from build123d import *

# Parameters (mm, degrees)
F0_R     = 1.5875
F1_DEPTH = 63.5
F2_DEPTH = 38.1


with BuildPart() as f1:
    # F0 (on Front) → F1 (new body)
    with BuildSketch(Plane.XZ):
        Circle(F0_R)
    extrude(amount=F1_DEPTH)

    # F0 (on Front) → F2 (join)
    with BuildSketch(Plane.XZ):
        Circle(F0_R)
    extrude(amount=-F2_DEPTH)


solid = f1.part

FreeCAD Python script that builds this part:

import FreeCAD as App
import Part
import Sketcher
from FreeCAD import Vector
Q = App.Units.Quantity

doc = App.newDocument("Part")
body = doc.addObject("PartDesign::Body", "Body")

# Sketch on XZ plane
sketch1 = doc.addObject("Sketcher::SketchObject", "Sketch")
body.addObject(sketch1)
sketch1.AttachmentSupport = (doc.XZ_Plane, [""])
sketch1.MapMode = "FlatFace"
sketch1.addGeometry(Part.Circle(Vector(0, 0, 0), Vector(0, 0, 1), 1.5875), False)
sketch1.addConstraint(Sketcher.Constraint("Coincident", 0, 3, -1, 1))
sketch1.addConstraint(Sketcher.Constraint("Diameter", 0, Q("0.125 in")))
pad1 = doc.addObject("PartDesign::Pad", "Pad")
body.addObject(pad1)
pad1.Profile = sketch1
pad1.Length = Q("2.5 in")

# Sketch on XZ plane
sketch2 = doc.addObject("Sketcher::SketchObject", "Sketch001")
body.addObject(sketch2)
sketch2.AttachmentSupport = (doc.XZ_Plane, [""])
sketch2.MapMode = "FlatFace"
sketch2.addGeometry(Part.Circle(Vector(0, 0, 0), Vector(0, 0, 1), 1.5875), False)
sketch2.addConstraint(Sketcher.Constraint("Coincident", 0, 3, -1, 1))
sketch2.addConstraint(Sketcher.Constraint("Diameter", 0, Q("0.125 in")))
pad2 = doc.addObject("PartDesign::Pad", "Pad001")
body.addObject(pad2)
pad2.Profile = sketch2
pad2.Length = Q("1.5 in")
pad2.Reversed = True

doc.recompute()
